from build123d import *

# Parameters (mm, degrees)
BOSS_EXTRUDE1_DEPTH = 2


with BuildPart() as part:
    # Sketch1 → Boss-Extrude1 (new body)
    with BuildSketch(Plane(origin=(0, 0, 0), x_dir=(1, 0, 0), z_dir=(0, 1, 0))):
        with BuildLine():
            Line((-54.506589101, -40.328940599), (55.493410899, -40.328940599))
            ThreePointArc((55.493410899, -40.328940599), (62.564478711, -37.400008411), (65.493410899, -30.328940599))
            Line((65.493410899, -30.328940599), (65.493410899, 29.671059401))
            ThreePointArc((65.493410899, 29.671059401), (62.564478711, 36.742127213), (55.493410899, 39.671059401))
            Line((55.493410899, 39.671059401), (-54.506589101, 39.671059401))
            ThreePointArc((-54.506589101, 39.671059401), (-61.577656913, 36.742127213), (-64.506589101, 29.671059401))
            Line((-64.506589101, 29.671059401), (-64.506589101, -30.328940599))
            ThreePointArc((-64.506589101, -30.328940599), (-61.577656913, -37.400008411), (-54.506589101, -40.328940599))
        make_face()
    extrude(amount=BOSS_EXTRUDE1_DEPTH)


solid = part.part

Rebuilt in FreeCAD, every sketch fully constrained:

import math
import FreeCAD as App
import Part
import Sketcher
from FreeCAD import Vector

doc = App.newDocument("Part")
body = doc.addObject("PartDesign::Body", "Body")

sketch1 = body.newObject("Sketcher::SketchObject", "Sketch")
sketch1.AttachmentSupport = (doc.getObject("XZ_Plane"), [""])
sketch1.MapMode = "FlatFace"
sketch1.addGeometry([
    Part.LineSegment(Vector(-55, 40, 0), Vector(55, 40, 0)),
    Part.ArcOfCircle(Part.Circle(Vector(55, 30, 0), Vector(0, 0, 1), 10), math.radians(0), math.radians(90)),
    Part.LineSegment(Vector(65, 30, 0), Vector(65, -30, 0)),
    Part.ArcOfCircle(Part.Circle(Vector(55, -30, 0), Vector(0, 0, 1), 10), math.radians(-90), math.radians(0)),
    Part.LineSegment(Vector(55, -40, 0), Vector(-55, -40, 0)),
    Part.ArcOfCircle(Part.Circle(Vector(-55, -30, 0), Vector(0, 0, 1), 10), math.radians(180), math.radians(270)),
    Part.LineSegment(Vector(-65, -30, 0), Vector(-65, 30, 0)),
    Part.ArcOfCircle(Part.Circle(Vector(-55, 30, 0), Vector(0, 0, 1), 10), math.radians(90), math.radians(180)),
], False)
sketch1.addConstraint([
    Sketcher.Constraint("Tangent", 0, 2, 1, 2),
    Sketcher.Constraint("Tangent", 1, 1, 2, 1),
    Sketcher.Constraint("Tangent", 2, 2, 3, 2),
    Sketcher.Constraint("Tangent", 3, 1, 4, 1),
    Sketcher.Constraint("Tangent", 4, 2, 5, 2),
    Sketcher.Constraint("Tangent", 5, 1, 6, 1),
    Sketcher.Constraint("Tangent", 6, 2, 7, 2),
    Sketcher.Constraint("Tangent", 7, 1, 0, 1),
    Sketcher.Constraint("Horizontal", 0),
    Sketcher.Constraint("Vertical", 2),
    Sketcher.Constraint("Horizontal", 4),
    Sketcher.Constraint("Vertical", 6),
    Sketcher.Constraint("Equal", 1, 3),
    Sketcher.Constraint("Equal", 3, 5),
    Sketcher.Constraint("Equal", 5, 7),
    Sketcher.Constraint("Radius", 1, 10.0),
    Sketcher.Constraint("DistanceX", 0, 1, 0, 2, 110.0),
    Sketcher.Constraint("DistanceY", 2, 2, 2, 1, 60.0),
    Sketcher.Constraint("DistanceX", -1, 1, 1, 3, 55.493411),
    Sketcher.Constraint("DistanceY", -1, 1, 1, 3, 30.328941),
])
pad1 = body.newObject("PartDesign::Pad", "Pad")
pad1.Profile = sketch1
pad1.Length = 2
pad1.Reversed = True

doc.recompute()
